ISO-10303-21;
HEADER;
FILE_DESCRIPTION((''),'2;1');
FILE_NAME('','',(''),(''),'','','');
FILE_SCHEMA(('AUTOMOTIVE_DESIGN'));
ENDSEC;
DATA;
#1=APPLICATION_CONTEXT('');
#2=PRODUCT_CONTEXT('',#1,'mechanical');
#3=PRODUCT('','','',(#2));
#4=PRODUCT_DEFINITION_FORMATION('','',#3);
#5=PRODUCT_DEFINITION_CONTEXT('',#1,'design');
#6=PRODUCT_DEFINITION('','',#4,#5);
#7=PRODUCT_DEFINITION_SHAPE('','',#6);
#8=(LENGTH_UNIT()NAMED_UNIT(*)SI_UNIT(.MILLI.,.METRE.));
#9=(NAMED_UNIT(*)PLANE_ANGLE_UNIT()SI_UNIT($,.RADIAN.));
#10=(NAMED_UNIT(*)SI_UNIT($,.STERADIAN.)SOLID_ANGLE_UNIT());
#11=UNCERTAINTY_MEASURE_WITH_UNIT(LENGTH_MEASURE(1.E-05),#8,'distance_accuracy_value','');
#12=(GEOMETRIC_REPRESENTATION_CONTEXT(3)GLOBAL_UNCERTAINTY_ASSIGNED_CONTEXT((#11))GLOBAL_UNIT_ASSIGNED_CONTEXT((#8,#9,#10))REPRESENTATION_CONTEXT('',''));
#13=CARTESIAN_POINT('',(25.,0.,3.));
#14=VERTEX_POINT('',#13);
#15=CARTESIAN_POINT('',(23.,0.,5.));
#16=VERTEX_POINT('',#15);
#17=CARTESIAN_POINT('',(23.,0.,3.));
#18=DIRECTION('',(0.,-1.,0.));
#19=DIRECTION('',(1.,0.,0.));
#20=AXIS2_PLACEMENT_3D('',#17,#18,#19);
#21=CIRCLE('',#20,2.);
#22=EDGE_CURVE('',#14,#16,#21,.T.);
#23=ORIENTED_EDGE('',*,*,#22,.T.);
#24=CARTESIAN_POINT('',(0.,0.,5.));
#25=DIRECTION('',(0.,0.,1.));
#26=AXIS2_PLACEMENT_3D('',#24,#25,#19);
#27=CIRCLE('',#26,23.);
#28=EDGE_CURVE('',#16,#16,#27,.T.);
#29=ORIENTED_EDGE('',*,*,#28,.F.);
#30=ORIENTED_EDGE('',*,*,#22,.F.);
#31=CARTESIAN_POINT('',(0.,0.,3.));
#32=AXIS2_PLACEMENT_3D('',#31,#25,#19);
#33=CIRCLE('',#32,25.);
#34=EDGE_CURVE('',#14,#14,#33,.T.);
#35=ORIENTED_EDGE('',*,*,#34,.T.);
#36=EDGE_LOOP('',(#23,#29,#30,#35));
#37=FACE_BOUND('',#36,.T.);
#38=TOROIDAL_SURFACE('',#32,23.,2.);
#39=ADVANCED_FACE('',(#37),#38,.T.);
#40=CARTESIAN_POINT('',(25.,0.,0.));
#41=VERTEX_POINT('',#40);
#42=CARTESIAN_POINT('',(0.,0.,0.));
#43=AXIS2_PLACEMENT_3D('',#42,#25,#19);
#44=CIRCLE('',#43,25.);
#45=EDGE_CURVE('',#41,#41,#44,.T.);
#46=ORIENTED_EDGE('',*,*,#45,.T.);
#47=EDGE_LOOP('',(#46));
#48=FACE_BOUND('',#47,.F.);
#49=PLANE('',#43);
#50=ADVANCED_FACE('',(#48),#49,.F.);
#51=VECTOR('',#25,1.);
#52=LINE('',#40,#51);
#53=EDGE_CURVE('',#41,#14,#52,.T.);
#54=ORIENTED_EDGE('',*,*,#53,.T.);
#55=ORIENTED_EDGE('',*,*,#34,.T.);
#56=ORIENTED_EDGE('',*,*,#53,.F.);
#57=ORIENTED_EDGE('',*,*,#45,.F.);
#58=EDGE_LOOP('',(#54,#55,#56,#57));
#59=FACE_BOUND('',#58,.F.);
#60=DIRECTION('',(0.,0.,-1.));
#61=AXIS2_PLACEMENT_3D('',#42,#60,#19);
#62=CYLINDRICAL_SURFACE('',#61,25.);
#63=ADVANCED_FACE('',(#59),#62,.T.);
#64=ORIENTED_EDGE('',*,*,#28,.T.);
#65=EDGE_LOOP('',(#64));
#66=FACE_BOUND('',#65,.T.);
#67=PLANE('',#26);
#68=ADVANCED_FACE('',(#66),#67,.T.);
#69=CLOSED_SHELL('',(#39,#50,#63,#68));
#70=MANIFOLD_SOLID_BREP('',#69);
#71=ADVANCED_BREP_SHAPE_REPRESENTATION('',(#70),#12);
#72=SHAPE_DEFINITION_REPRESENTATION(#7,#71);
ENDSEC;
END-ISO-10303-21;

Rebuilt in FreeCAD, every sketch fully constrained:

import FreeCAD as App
import Part
import Sketcher

V = App.Vector


def edges_at(feature, points):
    """Names of the edges that pass closest to the given points."""
    edges = feature.Shape.Edges
    near = lambda p: min(range(len(edges)), key=lambda i: edges[i].distToShape(Part.Vertex(*p))[0])
    return sorted({f"Edge{near(p) + 1}" for p in points})

doc = App.newDocument("Part")
params = doc.addObject("Spreadsheet::Sheet", "Params")
for row, (alias, value) in enumerate([
    ("sketch1_diameter", "50 mm"),
    ("pad1_length", "5 mm"),
    ("fillet_radius", "2 mm"),
], start=1):
    params.set(f"A{row}", alias)
    params.set(f"B{row}", "=" + value)
    params.setAlias(f"B{row}", alias)

body = doc.addObject("PartDesign::Body", "Body")

# Sketch on XY plane
sketch1 = doc.addObject("Sketcher::SketchObject", "Sketch")
body.addObject(sketch1)
sketch1.AttachmentSupport = (doc.XY_Plane, [""])
sketch1.MapMode = "FlatFace"
sketch1.addGeometry(Part.Circle(V(0, 0, 0), V(0, 0, 1), 25), False)
sketch1.addConstraint(Sketcher.Constraint("Coincident", 0, 3, -1, 1))
sketch1.addConstraint(Sketcher.Constraint("Diameter", 0, 50.0))
sketch1.setExpression("Constraints[1]", "Params.sketch1_diameter")
pad1 = doc.addObject("PartDesign::Pad", "Pad")
body.addObject(pad1)
pad1.Profile = sketch1
pad1.setExpression("Length", "Params.pad1_length")
doc.recompute()

fillet = doc.addObject("PartDesign::Fillet", "Fillet")
body.addObject(fillet)
fillet.Base = (pad1, edges_at(pad1, [(-25, 0, 5)]))
fillet.setExpression("Radius", "Params.fillet_radius")

doc.recompute()
